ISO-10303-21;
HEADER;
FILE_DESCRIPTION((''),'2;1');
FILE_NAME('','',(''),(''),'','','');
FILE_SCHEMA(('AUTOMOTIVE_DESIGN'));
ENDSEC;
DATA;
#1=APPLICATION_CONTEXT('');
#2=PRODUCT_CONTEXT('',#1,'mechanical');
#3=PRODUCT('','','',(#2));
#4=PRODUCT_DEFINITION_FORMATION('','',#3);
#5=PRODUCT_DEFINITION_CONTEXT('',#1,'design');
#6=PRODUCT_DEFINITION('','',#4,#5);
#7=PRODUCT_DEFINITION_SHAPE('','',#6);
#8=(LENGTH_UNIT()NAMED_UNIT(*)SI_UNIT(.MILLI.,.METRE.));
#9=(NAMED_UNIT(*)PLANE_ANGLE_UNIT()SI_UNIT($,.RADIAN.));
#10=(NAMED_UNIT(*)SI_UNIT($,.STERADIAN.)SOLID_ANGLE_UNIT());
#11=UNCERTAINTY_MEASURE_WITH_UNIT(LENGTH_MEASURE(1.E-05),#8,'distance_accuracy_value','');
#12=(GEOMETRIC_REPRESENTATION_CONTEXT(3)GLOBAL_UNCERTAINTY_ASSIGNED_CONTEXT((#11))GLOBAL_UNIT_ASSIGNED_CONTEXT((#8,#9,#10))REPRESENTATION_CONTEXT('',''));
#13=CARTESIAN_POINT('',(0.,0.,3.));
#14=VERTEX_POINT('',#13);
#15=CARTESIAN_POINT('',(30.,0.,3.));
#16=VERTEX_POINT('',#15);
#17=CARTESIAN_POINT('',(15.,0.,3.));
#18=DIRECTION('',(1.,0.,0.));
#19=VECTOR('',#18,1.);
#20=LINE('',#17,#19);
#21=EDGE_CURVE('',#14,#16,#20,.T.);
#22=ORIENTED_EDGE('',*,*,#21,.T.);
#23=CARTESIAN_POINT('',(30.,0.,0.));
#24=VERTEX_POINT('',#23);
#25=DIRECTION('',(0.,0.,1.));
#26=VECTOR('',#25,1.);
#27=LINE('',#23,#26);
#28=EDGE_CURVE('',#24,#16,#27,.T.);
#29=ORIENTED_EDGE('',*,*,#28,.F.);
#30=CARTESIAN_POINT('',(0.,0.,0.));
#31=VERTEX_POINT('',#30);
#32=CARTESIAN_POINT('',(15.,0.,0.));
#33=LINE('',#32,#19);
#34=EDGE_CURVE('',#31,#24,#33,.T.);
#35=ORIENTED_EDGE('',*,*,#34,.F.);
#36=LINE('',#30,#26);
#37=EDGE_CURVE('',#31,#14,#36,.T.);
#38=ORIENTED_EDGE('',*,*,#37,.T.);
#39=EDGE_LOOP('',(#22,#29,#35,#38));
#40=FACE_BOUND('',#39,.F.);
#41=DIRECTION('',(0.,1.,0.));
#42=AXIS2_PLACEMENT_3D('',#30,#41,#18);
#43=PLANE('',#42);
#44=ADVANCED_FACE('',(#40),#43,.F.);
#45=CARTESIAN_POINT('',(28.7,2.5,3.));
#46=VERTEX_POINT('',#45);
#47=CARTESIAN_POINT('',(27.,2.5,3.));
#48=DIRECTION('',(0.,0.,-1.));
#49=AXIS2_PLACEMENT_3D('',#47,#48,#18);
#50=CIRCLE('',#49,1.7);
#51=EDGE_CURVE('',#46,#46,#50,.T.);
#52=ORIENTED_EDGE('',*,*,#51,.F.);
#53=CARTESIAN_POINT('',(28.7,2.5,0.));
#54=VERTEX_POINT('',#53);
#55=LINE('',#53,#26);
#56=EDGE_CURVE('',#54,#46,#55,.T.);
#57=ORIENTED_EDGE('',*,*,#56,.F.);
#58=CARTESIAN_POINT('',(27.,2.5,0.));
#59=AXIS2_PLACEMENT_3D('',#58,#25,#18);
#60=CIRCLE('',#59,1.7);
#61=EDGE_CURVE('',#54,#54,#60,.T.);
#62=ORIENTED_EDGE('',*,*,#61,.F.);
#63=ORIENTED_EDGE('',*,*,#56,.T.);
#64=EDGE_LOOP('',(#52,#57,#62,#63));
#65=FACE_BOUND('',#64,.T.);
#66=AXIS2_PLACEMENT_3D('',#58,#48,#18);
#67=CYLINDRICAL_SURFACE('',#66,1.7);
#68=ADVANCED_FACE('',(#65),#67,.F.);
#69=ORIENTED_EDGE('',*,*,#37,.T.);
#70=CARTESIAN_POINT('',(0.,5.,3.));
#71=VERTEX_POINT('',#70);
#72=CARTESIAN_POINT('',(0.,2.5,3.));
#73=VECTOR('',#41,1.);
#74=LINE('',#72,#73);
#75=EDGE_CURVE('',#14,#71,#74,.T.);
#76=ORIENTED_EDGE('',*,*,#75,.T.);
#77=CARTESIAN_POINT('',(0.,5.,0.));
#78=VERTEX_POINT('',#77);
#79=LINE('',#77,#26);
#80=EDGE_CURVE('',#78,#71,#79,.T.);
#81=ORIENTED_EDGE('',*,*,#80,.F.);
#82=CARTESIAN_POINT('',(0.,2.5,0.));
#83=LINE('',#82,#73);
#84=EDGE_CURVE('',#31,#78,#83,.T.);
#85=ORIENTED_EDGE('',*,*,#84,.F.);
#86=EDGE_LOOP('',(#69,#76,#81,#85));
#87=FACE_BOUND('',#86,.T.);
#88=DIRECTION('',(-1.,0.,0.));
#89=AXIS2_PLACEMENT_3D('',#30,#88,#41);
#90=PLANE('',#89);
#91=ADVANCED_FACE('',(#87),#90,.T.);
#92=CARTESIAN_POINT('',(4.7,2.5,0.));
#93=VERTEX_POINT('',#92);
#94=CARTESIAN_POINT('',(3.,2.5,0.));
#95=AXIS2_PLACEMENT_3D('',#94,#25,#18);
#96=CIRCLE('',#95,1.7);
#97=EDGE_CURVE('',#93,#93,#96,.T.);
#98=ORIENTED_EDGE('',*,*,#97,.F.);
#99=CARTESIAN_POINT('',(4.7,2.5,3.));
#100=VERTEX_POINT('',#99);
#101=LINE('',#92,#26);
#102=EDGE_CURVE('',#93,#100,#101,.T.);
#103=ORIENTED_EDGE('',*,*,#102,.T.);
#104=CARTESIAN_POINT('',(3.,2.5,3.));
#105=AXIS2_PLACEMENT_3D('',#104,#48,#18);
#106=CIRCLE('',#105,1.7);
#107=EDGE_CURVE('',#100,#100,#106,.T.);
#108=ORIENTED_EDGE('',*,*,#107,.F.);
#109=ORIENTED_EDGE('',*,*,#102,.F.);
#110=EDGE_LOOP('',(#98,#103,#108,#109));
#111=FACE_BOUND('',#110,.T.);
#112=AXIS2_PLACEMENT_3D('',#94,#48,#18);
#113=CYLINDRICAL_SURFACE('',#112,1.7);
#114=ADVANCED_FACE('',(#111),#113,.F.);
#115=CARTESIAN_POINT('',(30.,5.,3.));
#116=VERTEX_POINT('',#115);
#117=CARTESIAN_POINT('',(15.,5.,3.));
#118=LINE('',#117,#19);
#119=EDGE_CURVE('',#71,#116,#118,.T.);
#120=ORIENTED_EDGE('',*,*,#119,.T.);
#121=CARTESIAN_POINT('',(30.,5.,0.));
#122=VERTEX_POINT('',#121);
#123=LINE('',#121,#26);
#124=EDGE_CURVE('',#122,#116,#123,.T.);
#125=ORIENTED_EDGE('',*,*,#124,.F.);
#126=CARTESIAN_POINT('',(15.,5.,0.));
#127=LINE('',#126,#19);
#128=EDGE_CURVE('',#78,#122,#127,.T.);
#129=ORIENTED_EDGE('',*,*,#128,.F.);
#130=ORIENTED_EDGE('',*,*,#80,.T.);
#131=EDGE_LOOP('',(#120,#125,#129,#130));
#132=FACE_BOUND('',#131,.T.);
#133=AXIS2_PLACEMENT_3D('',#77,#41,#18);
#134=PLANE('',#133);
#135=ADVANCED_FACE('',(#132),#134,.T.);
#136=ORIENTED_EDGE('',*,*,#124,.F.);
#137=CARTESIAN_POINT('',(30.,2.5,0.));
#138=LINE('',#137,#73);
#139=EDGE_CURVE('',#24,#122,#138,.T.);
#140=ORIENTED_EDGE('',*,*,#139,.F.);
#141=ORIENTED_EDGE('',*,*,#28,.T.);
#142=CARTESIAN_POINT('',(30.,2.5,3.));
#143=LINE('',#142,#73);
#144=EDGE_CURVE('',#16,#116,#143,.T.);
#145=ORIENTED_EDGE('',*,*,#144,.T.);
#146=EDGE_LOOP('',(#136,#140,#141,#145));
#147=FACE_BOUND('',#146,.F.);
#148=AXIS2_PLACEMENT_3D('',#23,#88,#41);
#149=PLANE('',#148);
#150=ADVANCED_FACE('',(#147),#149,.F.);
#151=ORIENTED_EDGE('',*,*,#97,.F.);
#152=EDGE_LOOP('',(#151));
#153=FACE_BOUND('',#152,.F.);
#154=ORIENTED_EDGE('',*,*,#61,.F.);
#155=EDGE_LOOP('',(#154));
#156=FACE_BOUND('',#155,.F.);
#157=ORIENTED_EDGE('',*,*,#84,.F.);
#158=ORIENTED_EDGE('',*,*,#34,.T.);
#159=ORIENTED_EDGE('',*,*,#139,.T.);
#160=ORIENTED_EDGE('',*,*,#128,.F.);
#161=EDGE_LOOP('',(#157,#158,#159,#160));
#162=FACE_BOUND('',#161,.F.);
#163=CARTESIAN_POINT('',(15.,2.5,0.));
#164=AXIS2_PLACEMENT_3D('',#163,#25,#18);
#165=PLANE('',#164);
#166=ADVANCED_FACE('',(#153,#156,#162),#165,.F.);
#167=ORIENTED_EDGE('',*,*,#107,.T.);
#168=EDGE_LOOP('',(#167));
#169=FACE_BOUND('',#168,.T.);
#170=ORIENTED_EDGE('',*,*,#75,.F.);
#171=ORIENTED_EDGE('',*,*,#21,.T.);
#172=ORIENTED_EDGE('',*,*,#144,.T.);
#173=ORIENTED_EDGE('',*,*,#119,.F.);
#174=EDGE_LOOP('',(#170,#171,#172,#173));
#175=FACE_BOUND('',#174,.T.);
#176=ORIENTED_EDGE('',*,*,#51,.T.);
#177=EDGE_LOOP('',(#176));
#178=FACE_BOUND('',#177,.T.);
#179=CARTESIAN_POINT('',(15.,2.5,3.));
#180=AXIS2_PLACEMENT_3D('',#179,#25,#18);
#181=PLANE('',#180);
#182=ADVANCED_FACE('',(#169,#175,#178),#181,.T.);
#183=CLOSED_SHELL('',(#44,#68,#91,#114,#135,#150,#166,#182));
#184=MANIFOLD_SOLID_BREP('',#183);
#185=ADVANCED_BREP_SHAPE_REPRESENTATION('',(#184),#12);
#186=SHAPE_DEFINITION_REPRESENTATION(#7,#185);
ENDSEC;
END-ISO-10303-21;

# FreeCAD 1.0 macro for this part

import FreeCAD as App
import Part
import Sketcher
Q = App.Units.Quantity


def add_polygon(sketch, points):
    """Adds a closed chain of lines whose ends are joined by coincident constraints."""
    first, n = sketch.GeometryCount, len(points)
    for a, b in zip(points, points[1:] + points[:1]):
        sketch.addGeometry(Part.LineSegment(App.Vector(*a, 0), App.Vector(*b, 0)), False)
    for i in range(n):
        sketch.addConstraint(Sketcher.Constraint("Coincident", first + i, 2, first + (i + 1) % n, 1))

doc = App.newDocument("Part")
body = doc.addObject("PartDesign::Body", "Body")

# Sketch on XY plane
sketch1 = body.newObject("Sketcher::SketchObject", "Sketch")
sketch1.AttachmentSupport = (doc.getObject("XY_Plane"), [""])
sketch1.MapMode = "FlatFace"
sketch1.addGeometry(Part.Circle(App.Vector(27, 2.5, 0), App.Vector(0, 0, 1), 1.7), False)
sketch1.addConstraint([
    Sketcher.Constraint("Diameter", 0, Q("3.4 mm")),
    Sketcher.Constraint("DistanceX", -1, 1, 0, 3, Q("27 mm")),
    Sketcher.Constraint("DistanceY", -1, 1, 0, 3, Q("2.5 mm")),
])
pad1 = body.newObject("PartDesign::Pad", "Pad")
pad1.Profile = sketch1
pad1.Length = 10
body2 = doc.addObject("PartDesign::Body", "Body001")

# Sketch on XY plane
sketch2 = body2.newObject("Sketcher::SketchObject", "Sketch001")
sketch2.AttachmentSupport = (doc.getObject("XY_Plane001"), [""])
sketch2.MapMode = "FlatFace"
sketch2.addGeometry(Part.Circle(App.Vector(3, 2.5, 0), App.Vector(0, 0, 1), 1.7), False)
sketch2.addConstraint([
    Sketcher.Constraint("Diameter", 0, Q("3.4 mm")),
    Sketcher.Constraint("DistanceX", -1, 1, 0, 3, Q("3 mm")),
    Sketcher.Constraint("DistanceY", -1, 1, 0, 3, Q("2.5 mm")),
])
pad2 = body2.newObject("PartDesign::Pad", "Pad001")
pad2.Profile = sketch2
pad2.Length = 10
body3 = doc.addObject("PartDesign::Body", "Body002")

# Sketch on XY plane
sketch3 = body3.newObject("Sketcher::SketchObject", "Sketch002")
sketch3.AttachmentSupport = (doc.getObject("XY_Plane002"), [""])
sketch3.MapMode = "FlatFace"
add_polygon(sketch3, [(0, 5), (0, 0), (30, 0), (30, 5)])  # lines 0-3
sketch3.addConstraint([
    Sketcher.Constraint("Vertical", 0),
    Sketcher.Constraint("Horizontal", 1),
    Sketcher.Constraint("Vertical", 2),
    Sketcher.Constraint("Horizontal", 3),
    Sketcher.Constraint("Coincident", 0, 2, -1, 1),
    Sketcher.Constraint("DistanceX", 1, 1, 1, 2, Q("30 mm")),
    Sketcher.Constraint("DistanceY", 0, 2, 0, 1, Q("5 mm")),
])
pad3 = body3.newObject("PartDesign::Pad", "Pad002")
pad3.Profile = sketch3
pad3.Length = 3
doc.recompute()

boolean = body3.newObject("PartDesign::Boolean", "Boolean")
boolean.Type = "Cut"
boolean.addObjects([body2])
doc.recompute()

boolean2 = body3.newObject("PartDesign::Boolean", "Boolean001")
boolean2.Type = "Cut"
boolean2.addObjects([body])

doc.recompute()
